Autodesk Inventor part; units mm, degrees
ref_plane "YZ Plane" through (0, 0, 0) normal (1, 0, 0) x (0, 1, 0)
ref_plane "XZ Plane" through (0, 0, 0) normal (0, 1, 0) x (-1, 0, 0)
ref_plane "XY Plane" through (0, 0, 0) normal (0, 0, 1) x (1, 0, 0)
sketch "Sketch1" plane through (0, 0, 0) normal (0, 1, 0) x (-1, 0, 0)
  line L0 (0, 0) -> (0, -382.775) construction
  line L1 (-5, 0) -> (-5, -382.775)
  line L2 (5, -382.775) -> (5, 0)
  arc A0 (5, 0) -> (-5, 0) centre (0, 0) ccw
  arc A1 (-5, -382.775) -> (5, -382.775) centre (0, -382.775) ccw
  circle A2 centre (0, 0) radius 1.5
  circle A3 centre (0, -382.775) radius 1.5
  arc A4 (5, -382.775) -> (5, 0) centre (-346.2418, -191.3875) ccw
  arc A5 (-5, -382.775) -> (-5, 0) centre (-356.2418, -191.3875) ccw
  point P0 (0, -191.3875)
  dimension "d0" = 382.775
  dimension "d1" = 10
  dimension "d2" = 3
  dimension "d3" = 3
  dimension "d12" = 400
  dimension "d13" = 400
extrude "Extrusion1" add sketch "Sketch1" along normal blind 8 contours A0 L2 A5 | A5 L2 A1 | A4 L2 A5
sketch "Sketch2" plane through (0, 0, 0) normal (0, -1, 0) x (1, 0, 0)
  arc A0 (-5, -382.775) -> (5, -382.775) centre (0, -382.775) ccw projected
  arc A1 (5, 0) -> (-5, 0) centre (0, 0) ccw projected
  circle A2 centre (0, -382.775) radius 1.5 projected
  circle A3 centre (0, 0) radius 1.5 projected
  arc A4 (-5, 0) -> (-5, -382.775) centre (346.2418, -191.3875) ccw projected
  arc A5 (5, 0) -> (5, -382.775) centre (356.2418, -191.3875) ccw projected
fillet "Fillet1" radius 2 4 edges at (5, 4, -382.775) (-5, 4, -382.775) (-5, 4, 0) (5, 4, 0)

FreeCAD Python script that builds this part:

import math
import FreeCAD as App
import Part
import Sketcher
from FreeCAD import Vector


def edges_at(feature, points):
    """Names of the edges that pass closest to the given points."""
    edges = feature.Shape.Edges
    near = lambda p: min(range(len(edges)), key=lambda i: edges[i].distToShape(Part.Vertex(*p))[0])
    return sorted({f"Edge{near(p) + 1}" for p in points})

doc = App.newDocument("Part")
body = doc.addObject("PartDesign::Body", "Body")

# Sketch on XZ plane
sketch1 = doc.addObject("Sketcher::SketchObject", "Sketch")
body.addObject(sketch1)
sketch1.AttachmentSupport = (doc.XZ_Plane, [""])
sketch1.MapMode = "FlatFace"
sketch1.addGeometry(Part.ArcOfCircle(Part.Circle(Vector(0, 0, 0), Vector(0, 0, 1), 5), math.radians(0), math.radians(180)), False)
sketch1.addGeometry(Part.ArcOfCircle(Part.Circle(Vector(356.2, -191.4, 0), Vector(0, 0, 1), 400), math.radians(151), math.radians(209)), False)
sketch1.addGeometry(Part.ArcOfCircle(Part.Circle(Vector(0, -382.8, 0), Vector(0, 0, 1), 5), math.radians(180), math.radians(360)), False)
sketch1.addGeometry(Part.ArcOfCircle(Part.Circle(Vector(346.2, -191.4, 0), Vector(0, 0, 1), 400), math.radians(151), math.radians(209)), False)
sketch1.addGeometry(Part.Circle(Vector(0, 0, 0), Vector(0, 0, 1), 1.5), False)
sketch1.addGeometry(Part.Circle(Vector(0, -382.8, 0), Vector(0, 0, 1), 1.5), False)
sketch1.addConstraint(Sketcher.Constraint("Coincident", 0, 1, 1, 1))
sketch1.addConstraint(Sketcher.Constraint("Coincident", 1, 2, 2, 2))
sketch1.addConstraint(Sketcher.Constraint("Coincident", 2, 1, 3, 2))
sketch1.addConstraint(Sketcher.Constraint("Coincident", 3, 1, 0, 2))
sketch1.addConstraint(Sketcher.Constraint("Coincident", 0, 3, -1, 1))
sketch1.addConstraint(Sketcher.Constraint("Coincident", 4, 3, -1, 1))
sketch1.addConstraint(Sketcher.Constraint("Coincident", 5, 3, 2, 3))
sketch1.addConstraint(Sketcher.Constraint("Equal", 0, 2))
sketch1.addConstraint(Sketcher.Constraint("Equal", 1, 3))
sketch1.addConstraint(Sketcher.Constraint("Equal", 4, 5))
sketch1.addConstraint(Sketcher.Constraint("Symmetric", 1, 2, 2, 1, -2))
sketch1.addConstraint(Sketcher.Constraint("PointOnObject", 0, 1, -1))
sketch1.addConstraint(Sketcher.Constraint("PointOnObject", 3, 1, -1))
sketch1.addConstraint(Sketcher.Constraint("Horizontal", 5, 3, 1, 2))
sketch1.addConstraint(Sketcher.Constraint("Diameter", 4, 3.0))
sketch1.addConstraint(Sketcher.Constraint("Radius", 0, 5.0))
sketch1.addConstraint(Sketcher.Constraint("Radius", 1, 400.0))
sketch1.addConstraint(Sketcher.Constraint("DistanceY", 2, 3, -1, 1, 382.775))
pad1 = doc.addObject("PartDesign::Pad", "Pad")
body.addObject(pad1)
pad1.Profile = sketch1
pad1.Length = 8
pad1.Reversed = True
doc.recompute()

fillet = doc.addObject("PartDesign::Fillet", "Fillet")
body.addObject(fillet)
fillet.Base = (pad1, edges_at(pad1, [
    (5, 4, -382.775),
    (-5, 4, -382.775),
    (-5, 4, 0),
    (5, 4, 0),
]))
fillet.Radius = 2

doc.recompute()
